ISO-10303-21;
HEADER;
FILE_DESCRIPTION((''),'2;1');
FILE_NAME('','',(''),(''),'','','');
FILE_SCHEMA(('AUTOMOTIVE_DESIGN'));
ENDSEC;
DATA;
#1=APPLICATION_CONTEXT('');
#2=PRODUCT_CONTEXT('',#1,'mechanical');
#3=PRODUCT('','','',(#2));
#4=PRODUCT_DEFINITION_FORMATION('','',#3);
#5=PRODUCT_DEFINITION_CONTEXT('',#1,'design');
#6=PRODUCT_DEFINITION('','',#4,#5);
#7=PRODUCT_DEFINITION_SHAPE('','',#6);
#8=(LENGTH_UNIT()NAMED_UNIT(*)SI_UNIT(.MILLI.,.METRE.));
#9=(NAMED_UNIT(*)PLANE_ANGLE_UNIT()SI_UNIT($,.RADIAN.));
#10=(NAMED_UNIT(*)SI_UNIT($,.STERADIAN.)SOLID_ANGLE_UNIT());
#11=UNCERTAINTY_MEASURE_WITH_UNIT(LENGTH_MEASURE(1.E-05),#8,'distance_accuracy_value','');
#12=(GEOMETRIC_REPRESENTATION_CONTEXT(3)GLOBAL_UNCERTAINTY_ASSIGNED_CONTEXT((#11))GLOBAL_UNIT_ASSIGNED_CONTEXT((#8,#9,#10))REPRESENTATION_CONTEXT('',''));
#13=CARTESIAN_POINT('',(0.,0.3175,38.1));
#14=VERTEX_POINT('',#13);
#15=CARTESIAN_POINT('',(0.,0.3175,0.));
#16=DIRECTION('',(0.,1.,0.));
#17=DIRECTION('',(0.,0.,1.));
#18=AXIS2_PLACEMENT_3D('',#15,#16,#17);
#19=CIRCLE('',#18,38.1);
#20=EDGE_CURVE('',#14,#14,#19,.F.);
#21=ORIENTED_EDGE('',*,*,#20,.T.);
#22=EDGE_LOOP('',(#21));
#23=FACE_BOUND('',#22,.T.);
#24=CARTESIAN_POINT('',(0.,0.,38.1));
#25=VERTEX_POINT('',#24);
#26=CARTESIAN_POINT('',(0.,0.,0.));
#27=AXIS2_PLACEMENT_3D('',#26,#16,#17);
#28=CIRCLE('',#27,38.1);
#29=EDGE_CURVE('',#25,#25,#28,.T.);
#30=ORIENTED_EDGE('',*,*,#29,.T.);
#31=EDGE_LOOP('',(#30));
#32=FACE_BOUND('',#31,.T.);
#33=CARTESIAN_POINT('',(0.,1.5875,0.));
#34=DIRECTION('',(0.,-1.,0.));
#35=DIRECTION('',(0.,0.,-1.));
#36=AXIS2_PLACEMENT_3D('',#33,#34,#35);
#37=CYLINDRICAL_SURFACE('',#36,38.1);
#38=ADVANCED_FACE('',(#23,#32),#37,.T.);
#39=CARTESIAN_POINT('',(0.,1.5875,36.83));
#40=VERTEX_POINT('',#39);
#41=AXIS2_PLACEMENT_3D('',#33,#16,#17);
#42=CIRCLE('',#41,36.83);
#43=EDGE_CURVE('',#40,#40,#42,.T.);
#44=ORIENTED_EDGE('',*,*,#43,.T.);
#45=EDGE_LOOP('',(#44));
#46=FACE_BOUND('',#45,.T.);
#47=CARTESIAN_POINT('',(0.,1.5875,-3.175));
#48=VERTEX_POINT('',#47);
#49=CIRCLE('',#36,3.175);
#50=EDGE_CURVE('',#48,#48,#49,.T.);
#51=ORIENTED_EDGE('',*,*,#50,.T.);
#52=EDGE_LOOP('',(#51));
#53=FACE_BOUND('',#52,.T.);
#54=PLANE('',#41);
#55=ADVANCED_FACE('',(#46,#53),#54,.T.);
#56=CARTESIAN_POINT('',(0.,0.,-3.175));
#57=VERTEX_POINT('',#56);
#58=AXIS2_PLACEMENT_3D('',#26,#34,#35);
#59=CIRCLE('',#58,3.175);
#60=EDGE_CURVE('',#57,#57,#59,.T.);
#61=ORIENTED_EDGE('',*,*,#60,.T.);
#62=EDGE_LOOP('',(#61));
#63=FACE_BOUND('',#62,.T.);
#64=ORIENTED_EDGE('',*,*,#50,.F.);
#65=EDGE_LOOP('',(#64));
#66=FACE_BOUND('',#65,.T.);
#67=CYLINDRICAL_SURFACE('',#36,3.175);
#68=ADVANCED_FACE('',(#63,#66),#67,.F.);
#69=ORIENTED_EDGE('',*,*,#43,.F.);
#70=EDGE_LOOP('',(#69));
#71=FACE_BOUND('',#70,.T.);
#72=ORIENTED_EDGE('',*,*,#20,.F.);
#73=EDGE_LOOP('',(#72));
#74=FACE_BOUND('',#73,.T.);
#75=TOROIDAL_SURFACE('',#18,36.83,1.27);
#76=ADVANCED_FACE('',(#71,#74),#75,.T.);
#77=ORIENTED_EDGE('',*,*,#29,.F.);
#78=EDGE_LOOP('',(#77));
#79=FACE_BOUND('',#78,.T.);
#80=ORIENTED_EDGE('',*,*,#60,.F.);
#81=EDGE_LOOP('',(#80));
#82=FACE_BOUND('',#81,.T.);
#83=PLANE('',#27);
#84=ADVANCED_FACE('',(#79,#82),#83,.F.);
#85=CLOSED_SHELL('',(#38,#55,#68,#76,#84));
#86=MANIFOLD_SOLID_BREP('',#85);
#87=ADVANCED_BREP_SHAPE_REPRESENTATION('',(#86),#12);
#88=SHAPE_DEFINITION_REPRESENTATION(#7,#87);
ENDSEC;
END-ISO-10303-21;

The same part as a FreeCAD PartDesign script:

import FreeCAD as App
import Part
import Sketcher

V = App.Vector
Q = App.Units.Quantity


def edges_at(feature, points):
    """Names of the edges that pass closest to the given points."""
    edges = feature.Shape.Edges
    near = lambda p: min(range(len(edges)), key=lambda i: edges[i].distToShape(Part.Vertex(*p))[0])
    return sorted({f"Edge{near(p) + 1}" for p in points})

doc = App.newDocument("Part")
body = doc.addObject("PartDesign::Body", "Body")

# Sketch on XZ plane
sketch1 = doc.addObject("Sketcher::SketchObject", "Sketch")
body.addObject(sketch1)
sketch1.AttachmentSupport = (doc.XZ_Plane, [""])
sketch1.MapMode = "FlatFace"
sketch1.addGeometry(Part.Circle(V(0, 0, 0), V(0, 0, 1), 38), False)
sketch1.addConstraint([
    Sketcher.Constraint("Coincident", 0, 3, -1, 1),
    Sketcher.Constraint("Diameter", 0, Q("3 in")),
])
pad1 = doc.addObject("PartDesign::Pad", "Pad")
body.addObject(pad1)
pad1.Profile = sketch1
pad1.Length = Q("0.0625 in")
pad1.Reversed = True
doc.recompute()

fillet = doc.addObject("PartDesign::Fillet", "Fillet")
body.addObject(fillet)
fillet.Base = (pad1, edges_at(pad1, [(0, 1.587, -38.1)]))
fillet.Radius = Q("0.05 in")

# Sketch on XZ plane
sketch2 = doc.addObject("Sketcher::SketchObject", "Sketch001")
body.addObject(sketch2)
sketch2.AttachmentSupport = (doc.XZ_Plane, [""])
sketch2.MapMode = "FlatFace"
sketch2.addGeometry(Part.Circle(V(0, 0, 0), V(0, 0, 1), 3.2), False)
sketch2.addConstraint([
    Sketcher.Constraint("Coincident", 0, 3, -1, 1),
    Sketcher.Constraint("Diameter", 0, Q("0.25 in")),
])
pocket1 = doc.addObject("PartDesign::Pocket", "Pocket")
body.addObject(pocket1)
pocket1.Profile = sketch2
pocket1.Type = "ThroughAll"

doc.recompute()
